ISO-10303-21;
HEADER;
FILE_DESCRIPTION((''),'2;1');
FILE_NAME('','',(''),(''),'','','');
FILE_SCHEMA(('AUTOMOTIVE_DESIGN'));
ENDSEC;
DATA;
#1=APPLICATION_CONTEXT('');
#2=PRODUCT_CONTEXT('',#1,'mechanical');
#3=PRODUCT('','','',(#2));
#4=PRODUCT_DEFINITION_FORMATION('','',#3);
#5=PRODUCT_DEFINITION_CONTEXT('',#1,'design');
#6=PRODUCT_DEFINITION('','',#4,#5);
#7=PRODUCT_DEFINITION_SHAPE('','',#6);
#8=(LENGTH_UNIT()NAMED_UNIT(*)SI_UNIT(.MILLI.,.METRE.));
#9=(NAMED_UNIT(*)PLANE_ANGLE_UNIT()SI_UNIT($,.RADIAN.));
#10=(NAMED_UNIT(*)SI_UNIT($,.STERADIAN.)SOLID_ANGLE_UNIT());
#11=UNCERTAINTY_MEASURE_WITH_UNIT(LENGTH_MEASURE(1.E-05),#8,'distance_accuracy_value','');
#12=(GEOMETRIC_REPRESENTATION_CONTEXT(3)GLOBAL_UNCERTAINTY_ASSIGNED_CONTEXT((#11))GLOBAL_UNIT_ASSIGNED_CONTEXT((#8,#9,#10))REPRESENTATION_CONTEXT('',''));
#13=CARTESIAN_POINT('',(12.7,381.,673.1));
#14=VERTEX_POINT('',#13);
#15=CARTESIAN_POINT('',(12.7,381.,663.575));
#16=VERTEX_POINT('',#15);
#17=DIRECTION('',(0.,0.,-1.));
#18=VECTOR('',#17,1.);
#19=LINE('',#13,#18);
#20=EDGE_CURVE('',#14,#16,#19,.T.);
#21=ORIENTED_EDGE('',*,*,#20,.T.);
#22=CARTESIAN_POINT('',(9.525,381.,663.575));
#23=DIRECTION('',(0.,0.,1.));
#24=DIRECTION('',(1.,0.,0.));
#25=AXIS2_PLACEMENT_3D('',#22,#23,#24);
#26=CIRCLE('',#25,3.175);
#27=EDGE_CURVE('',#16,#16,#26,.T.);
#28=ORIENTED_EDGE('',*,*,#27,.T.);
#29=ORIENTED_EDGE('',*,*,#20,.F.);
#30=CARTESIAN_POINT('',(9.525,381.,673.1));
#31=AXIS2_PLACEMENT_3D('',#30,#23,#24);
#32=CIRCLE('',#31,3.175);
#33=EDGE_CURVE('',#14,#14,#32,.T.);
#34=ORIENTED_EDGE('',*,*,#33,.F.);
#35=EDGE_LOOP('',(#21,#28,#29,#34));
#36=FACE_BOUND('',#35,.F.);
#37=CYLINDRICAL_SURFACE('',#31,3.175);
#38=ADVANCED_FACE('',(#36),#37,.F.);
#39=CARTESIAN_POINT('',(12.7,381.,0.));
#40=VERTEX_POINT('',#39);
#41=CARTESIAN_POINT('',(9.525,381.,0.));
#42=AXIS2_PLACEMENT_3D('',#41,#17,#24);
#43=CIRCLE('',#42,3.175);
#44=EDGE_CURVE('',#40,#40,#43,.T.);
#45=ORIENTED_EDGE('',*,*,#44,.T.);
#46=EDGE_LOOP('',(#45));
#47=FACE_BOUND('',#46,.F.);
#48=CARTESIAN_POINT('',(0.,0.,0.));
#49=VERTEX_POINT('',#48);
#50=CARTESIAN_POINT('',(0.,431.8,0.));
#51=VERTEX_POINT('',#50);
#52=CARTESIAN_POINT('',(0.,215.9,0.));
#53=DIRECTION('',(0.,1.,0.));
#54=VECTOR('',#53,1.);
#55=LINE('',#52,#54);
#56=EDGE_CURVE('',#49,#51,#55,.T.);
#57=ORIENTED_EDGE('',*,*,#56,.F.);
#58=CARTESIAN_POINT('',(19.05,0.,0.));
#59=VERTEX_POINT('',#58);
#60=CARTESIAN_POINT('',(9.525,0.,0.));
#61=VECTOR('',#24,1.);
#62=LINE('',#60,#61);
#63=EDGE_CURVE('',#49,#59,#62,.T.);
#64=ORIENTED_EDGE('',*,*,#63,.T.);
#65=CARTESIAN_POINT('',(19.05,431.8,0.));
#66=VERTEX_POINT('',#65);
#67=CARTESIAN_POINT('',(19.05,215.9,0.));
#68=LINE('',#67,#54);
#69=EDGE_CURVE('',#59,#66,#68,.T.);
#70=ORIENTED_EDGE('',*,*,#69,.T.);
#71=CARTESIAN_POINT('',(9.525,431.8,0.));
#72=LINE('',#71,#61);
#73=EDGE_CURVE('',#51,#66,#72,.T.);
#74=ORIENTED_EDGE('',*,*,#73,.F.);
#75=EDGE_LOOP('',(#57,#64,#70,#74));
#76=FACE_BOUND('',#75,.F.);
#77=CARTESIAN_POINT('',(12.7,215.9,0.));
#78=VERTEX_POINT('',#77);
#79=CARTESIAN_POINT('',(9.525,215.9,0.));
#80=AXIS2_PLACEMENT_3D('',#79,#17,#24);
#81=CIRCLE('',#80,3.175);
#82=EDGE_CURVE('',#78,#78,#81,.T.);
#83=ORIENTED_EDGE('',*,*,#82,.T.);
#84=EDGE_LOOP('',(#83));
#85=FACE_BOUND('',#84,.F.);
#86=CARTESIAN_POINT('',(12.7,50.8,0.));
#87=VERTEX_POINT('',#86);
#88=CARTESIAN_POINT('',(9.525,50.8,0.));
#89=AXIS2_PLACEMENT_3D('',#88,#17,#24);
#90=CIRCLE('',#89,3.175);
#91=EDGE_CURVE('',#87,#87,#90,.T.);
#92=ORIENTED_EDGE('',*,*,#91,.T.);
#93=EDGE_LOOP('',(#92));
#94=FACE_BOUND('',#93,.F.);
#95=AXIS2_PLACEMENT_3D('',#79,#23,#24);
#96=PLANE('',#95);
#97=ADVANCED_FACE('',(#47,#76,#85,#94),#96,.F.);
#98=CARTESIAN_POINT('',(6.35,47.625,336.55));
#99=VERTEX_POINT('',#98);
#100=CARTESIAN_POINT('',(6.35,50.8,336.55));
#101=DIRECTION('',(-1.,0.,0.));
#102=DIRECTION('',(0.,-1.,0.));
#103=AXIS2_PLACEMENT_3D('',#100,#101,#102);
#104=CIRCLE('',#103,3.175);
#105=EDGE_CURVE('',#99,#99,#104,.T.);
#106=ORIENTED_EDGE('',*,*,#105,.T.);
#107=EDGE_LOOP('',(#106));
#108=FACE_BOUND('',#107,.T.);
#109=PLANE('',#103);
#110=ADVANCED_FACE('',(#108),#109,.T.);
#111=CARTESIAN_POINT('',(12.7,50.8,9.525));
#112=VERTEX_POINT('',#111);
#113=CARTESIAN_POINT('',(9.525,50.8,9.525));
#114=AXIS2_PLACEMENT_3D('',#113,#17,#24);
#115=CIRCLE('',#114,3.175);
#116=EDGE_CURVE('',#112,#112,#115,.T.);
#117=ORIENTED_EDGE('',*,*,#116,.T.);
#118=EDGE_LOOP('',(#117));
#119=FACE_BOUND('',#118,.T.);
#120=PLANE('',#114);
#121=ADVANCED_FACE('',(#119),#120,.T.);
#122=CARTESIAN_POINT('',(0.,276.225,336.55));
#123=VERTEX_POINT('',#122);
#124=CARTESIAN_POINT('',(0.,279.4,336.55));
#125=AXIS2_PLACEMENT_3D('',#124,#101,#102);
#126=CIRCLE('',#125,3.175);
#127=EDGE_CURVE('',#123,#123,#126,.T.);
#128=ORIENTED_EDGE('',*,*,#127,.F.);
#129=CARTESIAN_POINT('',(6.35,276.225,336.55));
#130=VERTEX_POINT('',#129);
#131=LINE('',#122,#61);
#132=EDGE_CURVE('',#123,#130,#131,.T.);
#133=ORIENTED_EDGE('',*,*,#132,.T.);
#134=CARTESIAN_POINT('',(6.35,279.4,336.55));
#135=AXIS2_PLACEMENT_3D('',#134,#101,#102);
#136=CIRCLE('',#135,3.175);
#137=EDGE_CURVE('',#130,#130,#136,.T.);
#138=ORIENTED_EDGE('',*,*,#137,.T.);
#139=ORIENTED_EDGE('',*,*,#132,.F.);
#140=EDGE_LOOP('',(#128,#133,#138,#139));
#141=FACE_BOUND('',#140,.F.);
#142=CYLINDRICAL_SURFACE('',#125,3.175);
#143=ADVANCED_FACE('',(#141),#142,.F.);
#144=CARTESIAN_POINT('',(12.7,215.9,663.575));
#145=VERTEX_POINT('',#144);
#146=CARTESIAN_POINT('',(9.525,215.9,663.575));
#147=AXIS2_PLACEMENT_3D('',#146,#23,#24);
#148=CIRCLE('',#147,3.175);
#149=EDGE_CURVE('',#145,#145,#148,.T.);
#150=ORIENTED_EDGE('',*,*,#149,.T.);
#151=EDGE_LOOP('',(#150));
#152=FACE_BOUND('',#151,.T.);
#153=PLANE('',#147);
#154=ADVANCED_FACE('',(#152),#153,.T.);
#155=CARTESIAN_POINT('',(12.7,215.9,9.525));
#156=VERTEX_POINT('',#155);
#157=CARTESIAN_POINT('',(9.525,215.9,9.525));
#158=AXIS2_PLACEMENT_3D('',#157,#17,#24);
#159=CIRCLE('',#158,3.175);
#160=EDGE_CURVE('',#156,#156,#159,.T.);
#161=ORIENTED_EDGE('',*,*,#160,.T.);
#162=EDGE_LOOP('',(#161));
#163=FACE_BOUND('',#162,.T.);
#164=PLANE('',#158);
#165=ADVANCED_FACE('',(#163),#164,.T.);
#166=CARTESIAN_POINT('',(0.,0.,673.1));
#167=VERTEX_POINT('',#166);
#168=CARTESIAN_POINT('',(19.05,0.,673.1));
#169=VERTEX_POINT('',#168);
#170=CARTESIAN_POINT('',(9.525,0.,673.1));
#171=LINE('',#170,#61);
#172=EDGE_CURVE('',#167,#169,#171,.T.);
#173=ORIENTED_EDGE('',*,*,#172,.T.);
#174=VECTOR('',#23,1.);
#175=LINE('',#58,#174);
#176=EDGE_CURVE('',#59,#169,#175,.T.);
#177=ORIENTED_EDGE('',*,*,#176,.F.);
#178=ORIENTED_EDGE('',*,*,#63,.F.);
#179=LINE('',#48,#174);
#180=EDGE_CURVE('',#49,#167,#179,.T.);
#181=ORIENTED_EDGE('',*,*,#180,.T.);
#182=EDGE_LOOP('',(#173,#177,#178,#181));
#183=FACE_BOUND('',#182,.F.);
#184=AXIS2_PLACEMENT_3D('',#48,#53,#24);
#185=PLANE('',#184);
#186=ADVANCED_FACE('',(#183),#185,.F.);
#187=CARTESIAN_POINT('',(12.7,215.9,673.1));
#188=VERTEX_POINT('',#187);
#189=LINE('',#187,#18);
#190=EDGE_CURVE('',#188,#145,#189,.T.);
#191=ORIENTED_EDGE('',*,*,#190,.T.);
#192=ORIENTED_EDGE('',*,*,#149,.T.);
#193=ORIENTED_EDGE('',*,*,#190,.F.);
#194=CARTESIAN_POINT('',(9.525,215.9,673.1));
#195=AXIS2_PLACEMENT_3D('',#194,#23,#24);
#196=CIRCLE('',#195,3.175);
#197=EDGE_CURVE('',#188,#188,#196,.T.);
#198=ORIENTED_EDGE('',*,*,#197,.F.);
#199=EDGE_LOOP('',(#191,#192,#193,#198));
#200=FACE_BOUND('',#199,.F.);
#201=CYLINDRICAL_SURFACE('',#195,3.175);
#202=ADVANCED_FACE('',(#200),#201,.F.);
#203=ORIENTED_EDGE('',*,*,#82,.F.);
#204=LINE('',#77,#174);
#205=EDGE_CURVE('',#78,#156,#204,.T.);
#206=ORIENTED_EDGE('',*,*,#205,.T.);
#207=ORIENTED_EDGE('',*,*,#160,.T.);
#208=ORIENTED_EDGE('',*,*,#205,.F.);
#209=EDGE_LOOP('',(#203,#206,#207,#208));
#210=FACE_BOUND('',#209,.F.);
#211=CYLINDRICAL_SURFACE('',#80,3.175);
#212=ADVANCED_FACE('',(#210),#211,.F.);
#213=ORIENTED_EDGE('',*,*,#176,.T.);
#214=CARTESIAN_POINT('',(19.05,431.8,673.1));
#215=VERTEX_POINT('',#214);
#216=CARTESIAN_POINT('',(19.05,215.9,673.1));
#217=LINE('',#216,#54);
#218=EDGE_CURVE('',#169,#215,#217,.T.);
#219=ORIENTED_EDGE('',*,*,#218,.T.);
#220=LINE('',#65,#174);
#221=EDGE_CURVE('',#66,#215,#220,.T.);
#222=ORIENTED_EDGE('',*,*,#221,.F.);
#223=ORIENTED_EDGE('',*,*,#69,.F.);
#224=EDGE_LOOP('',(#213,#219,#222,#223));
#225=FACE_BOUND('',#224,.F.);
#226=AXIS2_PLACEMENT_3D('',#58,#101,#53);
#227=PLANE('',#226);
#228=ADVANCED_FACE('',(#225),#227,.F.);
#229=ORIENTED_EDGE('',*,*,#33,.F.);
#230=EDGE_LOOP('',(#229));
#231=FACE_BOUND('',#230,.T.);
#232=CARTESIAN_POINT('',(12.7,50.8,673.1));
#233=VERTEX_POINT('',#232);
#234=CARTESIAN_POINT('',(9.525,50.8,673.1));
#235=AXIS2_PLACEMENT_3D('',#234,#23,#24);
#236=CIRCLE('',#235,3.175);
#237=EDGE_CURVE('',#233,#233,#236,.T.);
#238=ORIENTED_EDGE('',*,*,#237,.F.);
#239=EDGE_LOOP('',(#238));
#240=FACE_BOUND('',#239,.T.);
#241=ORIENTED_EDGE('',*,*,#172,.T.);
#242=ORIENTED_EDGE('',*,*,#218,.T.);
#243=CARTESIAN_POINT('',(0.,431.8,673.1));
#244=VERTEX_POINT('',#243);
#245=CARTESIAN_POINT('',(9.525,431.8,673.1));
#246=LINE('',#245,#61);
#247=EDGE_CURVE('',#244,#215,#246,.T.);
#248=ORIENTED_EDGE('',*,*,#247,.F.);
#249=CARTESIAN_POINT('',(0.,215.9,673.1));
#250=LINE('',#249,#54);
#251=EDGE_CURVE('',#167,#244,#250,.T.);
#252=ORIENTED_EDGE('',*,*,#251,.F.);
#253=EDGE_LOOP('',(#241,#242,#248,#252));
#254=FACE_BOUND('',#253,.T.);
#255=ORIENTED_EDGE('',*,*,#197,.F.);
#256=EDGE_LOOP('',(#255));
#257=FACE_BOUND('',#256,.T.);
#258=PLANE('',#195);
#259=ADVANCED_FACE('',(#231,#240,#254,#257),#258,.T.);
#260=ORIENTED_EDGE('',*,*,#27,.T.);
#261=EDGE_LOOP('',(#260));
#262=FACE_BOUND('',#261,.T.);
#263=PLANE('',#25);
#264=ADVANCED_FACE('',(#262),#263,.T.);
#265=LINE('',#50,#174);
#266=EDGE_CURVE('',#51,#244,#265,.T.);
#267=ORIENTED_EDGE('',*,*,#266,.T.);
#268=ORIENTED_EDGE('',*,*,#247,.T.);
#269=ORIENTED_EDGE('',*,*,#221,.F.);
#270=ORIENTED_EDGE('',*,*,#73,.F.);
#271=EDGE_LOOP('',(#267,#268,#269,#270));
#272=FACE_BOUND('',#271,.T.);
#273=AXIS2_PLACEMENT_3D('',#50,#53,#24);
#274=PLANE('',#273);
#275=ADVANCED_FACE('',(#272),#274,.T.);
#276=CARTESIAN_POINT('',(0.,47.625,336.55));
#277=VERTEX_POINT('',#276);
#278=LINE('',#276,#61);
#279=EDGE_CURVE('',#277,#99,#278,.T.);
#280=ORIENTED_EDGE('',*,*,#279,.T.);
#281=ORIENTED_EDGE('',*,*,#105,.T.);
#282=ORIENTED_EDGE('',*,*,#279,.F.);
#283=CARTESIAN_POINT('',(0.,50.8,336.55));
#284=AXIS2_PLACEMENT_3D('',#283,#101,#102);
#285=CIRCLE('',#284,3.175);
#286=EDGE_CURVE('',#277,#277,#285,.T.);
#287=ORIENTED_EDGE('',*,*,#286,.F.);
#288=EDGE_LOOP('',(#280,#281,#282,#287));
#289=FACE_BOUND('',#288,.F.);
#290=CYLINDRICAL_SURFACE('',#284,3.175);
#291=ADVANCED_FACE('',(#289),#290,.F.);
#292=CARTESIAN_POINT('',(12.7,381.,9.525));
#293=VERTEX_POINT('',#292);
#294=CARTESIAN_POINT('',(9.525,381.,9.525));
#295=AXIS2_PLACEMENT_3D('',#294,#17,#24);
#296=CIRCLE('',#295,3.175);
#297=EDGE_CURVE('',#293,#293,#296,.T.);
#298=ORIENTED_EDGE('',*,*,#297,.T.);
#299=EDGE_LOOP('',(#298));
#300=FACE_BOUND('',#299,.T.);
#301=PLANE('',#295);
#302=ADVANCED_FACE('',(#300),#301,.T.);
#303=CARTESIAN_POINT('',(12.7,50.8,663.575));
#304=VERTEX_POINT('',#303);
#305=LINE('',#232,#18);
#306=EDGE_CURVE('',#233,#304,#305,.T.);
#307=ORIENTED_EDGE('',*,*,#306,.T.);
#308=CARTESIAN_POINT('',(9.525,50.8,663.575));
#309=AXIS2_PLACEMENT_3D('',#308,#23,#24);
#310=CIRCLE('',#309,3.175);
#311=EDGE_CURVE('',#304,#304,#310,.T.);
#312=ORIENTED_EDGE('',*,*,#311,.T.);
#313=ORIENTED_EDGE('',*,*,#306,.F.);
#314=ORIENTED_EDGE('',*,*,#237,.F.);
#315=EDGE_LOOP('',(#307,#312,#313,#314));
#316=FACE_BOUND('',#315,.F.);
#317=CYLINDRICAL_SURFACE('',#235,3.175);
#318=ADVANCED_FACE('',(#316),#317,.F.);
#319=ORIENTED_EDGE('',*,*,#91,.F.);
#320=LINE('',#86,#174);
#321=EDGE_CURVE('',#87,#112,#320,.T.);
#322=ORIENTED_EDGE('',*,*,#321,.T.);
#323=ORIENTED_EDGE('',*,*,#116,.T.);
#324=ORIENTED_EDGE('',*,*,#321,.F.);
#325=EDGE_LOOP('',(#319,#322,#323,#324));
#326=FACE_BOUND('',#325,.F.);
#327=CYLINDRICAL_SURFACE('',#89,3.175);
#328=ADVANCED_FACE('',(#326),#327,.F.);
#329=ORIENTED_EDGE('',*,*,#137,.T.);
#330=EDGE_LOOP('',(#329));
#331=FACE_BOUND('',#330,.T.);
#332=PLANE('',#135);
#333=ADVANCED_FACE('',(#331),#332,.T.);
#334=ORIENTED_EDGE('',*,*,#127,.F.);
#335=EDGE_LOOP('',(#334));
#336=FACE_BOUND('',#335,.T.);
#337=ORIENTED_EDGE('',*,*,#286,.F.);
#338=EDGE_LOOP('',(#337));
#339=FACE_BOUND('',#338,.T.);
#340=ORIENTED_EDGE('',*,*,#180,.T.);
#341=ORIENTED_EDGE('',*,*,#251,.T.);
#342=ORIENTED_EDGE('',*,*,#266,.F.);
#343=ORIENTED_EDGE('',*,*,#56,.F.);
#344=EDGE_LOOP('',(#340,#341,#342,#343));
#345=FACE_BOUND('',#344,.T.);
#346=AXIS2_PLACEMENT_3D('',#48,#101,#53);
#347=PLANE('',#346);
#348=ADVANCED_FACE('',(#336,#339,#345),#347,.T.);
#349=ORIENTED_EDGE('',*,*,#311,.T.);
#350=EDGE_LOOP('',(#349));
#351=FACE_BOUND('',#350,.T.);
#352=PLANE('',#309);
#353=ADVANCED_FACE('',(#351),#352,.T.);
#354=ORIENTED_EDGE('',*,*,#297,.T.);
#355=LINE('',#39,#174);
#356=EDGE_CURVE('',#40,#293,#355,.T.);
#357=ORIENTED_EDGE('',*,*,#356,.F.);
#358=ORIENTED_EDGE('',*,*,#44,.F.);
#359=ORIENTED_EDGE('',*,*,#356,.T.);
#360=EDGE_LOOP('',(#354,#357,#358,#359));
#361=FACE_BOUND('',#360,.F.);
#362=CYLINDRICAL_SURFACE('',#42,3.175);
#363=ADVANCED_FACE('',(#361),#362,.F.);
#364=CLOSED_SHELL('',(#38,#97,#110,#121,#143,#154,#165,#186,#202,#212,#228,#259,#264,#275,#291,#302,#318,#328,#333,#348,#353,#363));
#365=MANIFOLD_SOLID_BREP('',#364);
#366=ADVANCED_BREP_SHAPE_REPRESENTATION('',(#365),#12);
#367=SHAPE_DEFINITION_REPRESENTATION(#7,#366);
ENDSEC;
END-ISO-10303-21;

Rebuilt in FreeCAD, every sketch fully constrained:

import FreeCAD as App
import Part
import Sketcher

V = App.Vector
Q = App.Units.Quantity


def add_polygon(sketch, points):
    """Adds a closed chain of lines whose ends are joined by coincident constraints."""
    first, n = sketch.GeometryCount, len(points)
    for a, b in zip(points, points[1:] + points[:1]):
        sketch.addGeometry(Part.LineSegment(App.Vector(*a, 0), App.Vector(*b, 0)), False)
    for i in range(n):
        sketch.addConstraint(Sketcher.Constraint("Coincident", first + i, 2, first + (i + 1) % n, 1))

doc = App.newDocument("Part")
body = doc.addObject("PartDesign::Body", "Body")

# Sketch on XY plane
sketch1 = body.newObject("Sketcher::SketchObject", "Sketch")
sketch1.AttachmentSupport = (doc.getObject("XY_Plane"), [""])
sketch1.MapMode = "FlatFace"
add_polygon(sketch1, [(0, 432), (0, 0), (19, 0), (19, 432)])  # lines 0-3
sketch1.addConstraint([
    Sketcher.Constraint("Vertical", 0),
    Sketcher.Constraint("Horizontal", 1),
    Sketcher.Constraint("Vertical", 2),
    Sketcher.Constraint("Horizontal", 3),
    Sketcher.Constraint("Coincident", 0, 2, -1, 1),
    Sketcher.Constraint("DistanceY", 0, 2, 0, 1, Q("17 in")),
    Sketcher.Constraint("DistanceX", 1, 1, 1, 2, Q("0.75 in")),
])
pad1 = body.newObject("PartDesign::Pad", "Pad")
pad1.Profile = sketch1
pad1.Length = Q("26.5 in")

# Sketch on XY plane
sketch2 = body.newObject("Sketcher::SketchObject", "Sketch001")
sketch2.AttachmentSupport = (doc.getObject("XY_Plane"), [""])
sketch2.MapMode = "FlatFace"
sketch2.addGeometry([
    Part.Circle(V(9.5, 50.8, 0), V(0, 0, 1), 3.2),
    Part.Circle(V(9.5, 215.9, 0), V(0, 0, 1), 3.2),
    Part.Circle(V(9.5, 381, 0), V(0, 0, 1), 3.2),
], False)
sketch2.addConstraint([
    Sketcher.Constraint("Equal", 0, 1),
    Sketcher.Constraint("Equal", 1, 2),
    Sketcher.Constraint("Vertical", 0, 3, 1, 3),
    Sketcher.Constraint("Vertical", 1, 3, 2, 3),
    Sketcher.Constraint("Diameter", 0, Q("0.25 in")),
    Sketcher.Constraint("DistanceY", -1, 1, 0, 3, Q("2 in")),
    Sketcher.Constraint("DistanceY", -1, 1, 2, 3, Q("15 in")),
    Sketcher.Constraint("DistanceY", -1, 1, 1, 3, Q("8.5 in")),
    Sketcher.Constraint("DistanceX", -1, 1, 0, 3, Q("0.375 in")),
])
pocket1 = body.newObject("PartDesign::Pocket", "Pocket")
pocket1.Profile = sketch2
pocket1.Length = Q("0.375 in")
pocket1.Reversed = True

# Sketch on XY plane
sketch3 = body.newObject("Sketcher::SketchObject", "Sketch002")
sketch3.AttachmentSupport = (doc.getObject("XY_Plane"), [""])
sketch3.MapMode = "FlatFace"
sketch3.AttachmentOffset = App.Placement(V(0, 0, 26.5 * 25.4), App.Rotation())
sketch3.addGeometry([
    Part.Circle(V(9.5, 381, 0), V(0, 0, 1), 3.2),
    Part.Circle(V(9.5, 215.9, 0), V(0, 0, 1), 3.2),
    Part.Circle(V(9.5, 50.8, 0), V(0, 0, 1), 3.2),
], False)
sketch3.addConstraint([
    Sketcher.Constraint("Equal", 0, 1),
    Sketcher.Constraint("Equal", 1, 2),
    Sketcher.Constraint("Vertical", 0, 3, 1, 3),
    Sketcher.Constraint("Vertical", 1, 3, 2, 3),
    Sketcher.Constraint("Diameter", 0, Q("0.25 in")),
    Sketcher.Constraint("DistanceY", -1, 1, 0, 3, Q("15 in")),
    Sketcher.Constraint("DistanceY", -1, 1, 2, 3, Q("2 in")),
    Sketcher.Constraint("DistanceY", -1, 1, 1, 3, Q("8.5 in")),
    Sketcher.Constraint("DistanceX", -1, 1, 0, 3, Q("0.375 in")),
])
pocket2 = body.newObject("PartDesign::Pocket", "Pocket001")
pocket2.Profile = sketch3
pocket2.Length = Q("0.375 in")

# Sketch on YZ plane
sketch4 = body.newObject("Sketcher::SketchObject", "Sketch003")
sketch4.AttachmentSupport = (doc.getObject("YZ_Plane"), [""])
sketch4.MapMode = "FlatFace"
sketch4.addGeometry([
    Part.Circle(V(279.4, 336.6, 0), V(0, 0, 1), 3.2),
    Part.Circle(V(50.8, 336.6, 0), V(0, 0, 1), 3.2),
], False)
sketch4.addConstraint([
    Sketcher.Constraint("Equal", 0, 1),
    Sketcher.Constraint("Horizontal", 0, 3, 1, 3),
    Sketcher.Constraint("Diameter", 0, Q("0.25 in")),
    Sketcher.Constraint("DistanceX", -1, 1, 0, 3, Q("11 in")),
    Sketcher.Constraint("DistanceX", -1, 1, 1, 3, Q("2 in")),
    Sketcher.Constraint("DistanceY", -1, 1, 0, 3, Q("13.25 in")),
])
pocket3 = body.newObject("PartDesign::Pocket", "Pocket002")
pocket3.Profile = sketch4
pocket3.Length = Q("0.25 in")
pocket3.Reversed = True

doc.recompute()
